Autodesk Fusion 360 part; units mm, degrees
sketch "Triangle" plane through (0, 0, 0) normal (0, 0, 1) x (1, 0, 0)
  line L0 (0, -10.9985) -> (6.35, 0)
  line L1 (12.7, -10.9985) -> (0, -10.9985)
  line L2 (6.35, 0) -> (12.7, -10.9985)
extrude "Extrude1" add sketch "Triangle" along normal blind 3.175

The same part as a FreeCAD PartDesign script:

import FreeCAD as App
import Part
import Sketcher
Q = App.Units.Quantity

doc = App.newDocument("Part")
body = doc.addObject("PartDesign::Body", "Body")

# Sketch on XY plane
sketch1 = body.newObject("Sketcher::SketchObject", "Sketch")
sketch1.AttachmentSupport = (doc.getObject("XY_Plane"), [""])
sketch1.MapMode = "FlatFace"
sketch1.addGeometry(Part.LineSegment(App.Vector(6, 0, 0), App.Vector(0, -11, 0)), False)
sketch1.addGeometry(Part.LineSegment(App.Vector(0, -11, 0), App.Vector(13, -11, 0)), False)
sketch1.addGeometry(Part.LineSegment(App.Vector(13, -11, 0), App.Vector(6, 0, 0)), False)
sketch1.addConstraint(Sketcher.Constraint("Coincident", 0, 2, 1, 1))
sketch1.addConstraint(Sketcher.Constraint("Coincident", 1, 2, 2, 1))
sketch1.addConstraint(Sketcher.Constraint("Coincident", 2, 2, 0, 1))
sketch1.addConstraint(Sketcher.Constraint("Horizontal", 1))
sketch1.addConstraint(Sketcher.Constraint("PointOnObject", 0, 2, -2))
sketch1.addConstraint(Sketcher.Constraint("PointOnObject", 2, 2, -1))
sketch1.addConstraint(Sketcher.Constraint("Equal", 0, 2))
sketch1.addConstraint(Sketcher.Constraint("DistanceX", 1, 1, 1, 2, Q("0.5 in")))
sketch1.addConstraint(Sketcher.Constraint("Angle", 0, Q("-120 deg")))
pad1 = body.newObject("PartDesign::Pad", "Pad")
pad1.Profile = sketch1
pad1.Length = Q("0.125 in")

doc.recompute()
